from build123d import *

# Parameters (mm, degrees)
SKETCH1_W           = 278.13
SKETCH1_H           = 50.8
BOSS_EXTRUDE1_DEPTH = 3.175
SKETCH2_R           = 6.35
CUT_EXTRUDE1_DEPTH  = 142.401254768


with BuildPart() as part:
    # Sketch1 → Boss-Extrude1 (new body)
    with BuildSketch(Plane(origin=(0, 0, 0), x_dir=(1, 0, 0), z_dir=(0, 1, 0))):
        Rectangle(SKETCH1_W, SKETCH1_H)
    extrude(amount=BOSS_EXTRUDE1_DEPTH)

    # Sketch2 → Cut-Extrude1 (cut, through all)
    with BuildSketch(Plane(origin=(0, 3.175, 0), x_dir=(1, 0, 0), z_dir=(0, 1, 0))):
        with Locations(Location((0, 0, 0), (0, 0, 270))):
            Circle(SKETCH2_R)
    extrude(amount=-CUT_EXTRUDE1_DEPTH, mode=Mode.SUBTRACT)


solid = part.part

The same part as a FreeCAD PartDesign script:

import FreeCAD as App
import Part
import Sketcher

V = App.Vector
Q = App.Units.Quantity

doc = App.newDocument("Part")
params = doc.addObject("Spreadsheet::Sheet", "Params")
for row, (alias, value) in enumerate([
    ("sketch1_height", "2 in"),
    ("sketch1_width", "10.95 in"),
    ("pad1_length", "0.125 in"),
    ("sketch2_diameter", "0.5 in"),
], start=1):
    params.set(f"A{row}", alias)
    params.set(f"B{row}", "=" + value)
    params.setAlias(f"B{row}", alias)

body = doc.addObject("PartDesign::Body", "Body")

# Sketch on XZ plane
sketch1 = body.newObject("Sketcher::SketchObject", "Sketch")
sketch1.AttachmentSupport = (doc.getObject("XZ_Plane"), [""])
sketch1.MapMode = "FlatFace"
sketch1.addGeometry([
    Part.LineSegment(V(-139.065, -25.4, 0), V(-139.065, 25.4, 0)),
    Part.LineSegment(V(-139.065, 25.4, 0), V(139.065, 25.4, 0)),
    Part.LineSegment(V(139.065, 25.4, 0), V(139.065, -25.4, 0)),
    Part.LineSegment(V(139.065, -25.4, 0), V(-139.065, -25.4, 0)),
], False)
sketch1.addConstraint([
    Sketcher.Constraint("Coincident", 0, 2, 1, 1),
    Sketcher.Constraint("Coincident", 1, 2, 2, 1),
    Sketcher.Constraint("Coincident", 2, 2, 3, 1),
    Sketcher.Constraint("Coincident", 3, 2, 0, 1),
    Sketcher.Constraint("Vertical", 0),
    Sketcher.Constraint("Horizontal", 1),
    Sketcher.Constraint("Vertical", 2),
    Sketcher.Constraint("Horizontal", 3),
    Sketcher.Constraint("Symmetric", 0, 2, 2, 2, -1, 1),
    Sketcher.Constraint("DistanceY", 0, 1, 0, 2, Q("2 in")),
    Sketcher.Constraint("DistanceX", 1, 1, 1, 2, Q("10.95 in")),
])
sketch1.setExpression("Constraints[9]", "Params.sketch1_height")
sketch1.setExpression("Constraints[10]", "Params.sketch1_width")
pad1 = body.newObject("PartDesign::Pad", "Pad")
pad1.Profile = sketch1
pad1.setExpression("Length", "Params.pad1_length")
pad1.Reversed = True

# Sketch on XZ plane
sketch2 = body.newObject("Sketcher::SketchObject", "Sketch001")
sketch2.AttachmentSupport = (doc.getObject("XZ_Plane"), [""])
sketch2.MapMode = "FlatFace"
sketch2.AttachmentOffset = App.Placement(V(0, 0, -0.125 * 25.4), App.Rotation())
sketch2.addGeometry(Part.Circle(V(0, 0, 0), V(0, 0, 1), 6.35), False)
sketch2.addConstraint([
    Sketcher.Constraint("Coincident", 0, 3, -1, 1),
    Sketcher.Constraint("Diameter", 0, Q("0.5 in")),
])
sketch2.setExpression("Constraints[1]", "Params.sketch2_diameter")
pocket1 = body.newObject("PartDesign::Pocket", "Pocket")
pocket1.Profile = sketch2
pocket1.Type = "ThroughAll"
pocket1.Reversed = True

doc.recompute()
